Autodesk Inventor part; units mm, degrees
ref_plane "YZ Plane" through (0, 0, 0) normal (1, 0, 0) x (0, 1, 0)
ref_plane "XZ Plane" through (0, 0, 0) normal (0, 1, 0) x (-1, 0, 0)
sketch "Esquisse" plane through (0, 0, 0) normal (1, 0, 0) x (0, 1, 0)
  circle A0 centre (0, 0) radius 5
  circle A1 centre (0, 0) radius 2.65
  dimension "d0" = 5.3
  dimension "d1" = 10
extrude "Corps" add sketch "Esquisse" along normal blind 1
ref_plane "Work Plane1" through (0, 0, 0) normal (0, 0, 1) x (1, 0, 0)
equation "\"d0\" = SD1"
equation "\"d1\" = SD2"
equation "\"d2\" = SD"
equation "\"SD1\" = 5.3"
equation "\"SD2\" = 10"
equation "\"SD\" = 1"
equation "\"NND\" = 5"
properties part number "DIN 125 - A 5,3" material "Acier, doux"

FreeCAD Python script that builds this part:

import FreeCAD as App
import Part
import Sketcher
from FreeCAD import Vector

doc = App.newDocument("Part")
body = doc.addObject("PartDesign::Body", "Body")

sketch1 = doc.addObject("Sketcher::SketchObject", "Sketch")
body.addObject(sketch1)
sketch1.AttachmentSupport = (doc.YZ_Plane, [""])
sketch1.MapMode = "FlatFace"
sketch1.addGeometry([
    Part.Circle(Vector(0, 0, 0), Vector(0, 0, 1), 5),
    Part.Circle(Vector(0, 0, 0), Vector(0, 0, 1), 2.6),
], False)
sketch1.addConstraint([
    Sketcher.Constraint("Coincident", 0, 3, -1, 1),
    Sketcher.Constraint("Coincident", 1, 3, -1, 1),
    Sketcher.Constraint("Diameter", 0, 10.0),
    Sketcher.Constraint("Diameter", 1, 5.3),
])
pad1 = doc.addObject("PartDesign::Pad", "Pad")
body.addObject(pad1)
pad1.Profile = sketch1
pad1.Length = 1

doc.recompute()
